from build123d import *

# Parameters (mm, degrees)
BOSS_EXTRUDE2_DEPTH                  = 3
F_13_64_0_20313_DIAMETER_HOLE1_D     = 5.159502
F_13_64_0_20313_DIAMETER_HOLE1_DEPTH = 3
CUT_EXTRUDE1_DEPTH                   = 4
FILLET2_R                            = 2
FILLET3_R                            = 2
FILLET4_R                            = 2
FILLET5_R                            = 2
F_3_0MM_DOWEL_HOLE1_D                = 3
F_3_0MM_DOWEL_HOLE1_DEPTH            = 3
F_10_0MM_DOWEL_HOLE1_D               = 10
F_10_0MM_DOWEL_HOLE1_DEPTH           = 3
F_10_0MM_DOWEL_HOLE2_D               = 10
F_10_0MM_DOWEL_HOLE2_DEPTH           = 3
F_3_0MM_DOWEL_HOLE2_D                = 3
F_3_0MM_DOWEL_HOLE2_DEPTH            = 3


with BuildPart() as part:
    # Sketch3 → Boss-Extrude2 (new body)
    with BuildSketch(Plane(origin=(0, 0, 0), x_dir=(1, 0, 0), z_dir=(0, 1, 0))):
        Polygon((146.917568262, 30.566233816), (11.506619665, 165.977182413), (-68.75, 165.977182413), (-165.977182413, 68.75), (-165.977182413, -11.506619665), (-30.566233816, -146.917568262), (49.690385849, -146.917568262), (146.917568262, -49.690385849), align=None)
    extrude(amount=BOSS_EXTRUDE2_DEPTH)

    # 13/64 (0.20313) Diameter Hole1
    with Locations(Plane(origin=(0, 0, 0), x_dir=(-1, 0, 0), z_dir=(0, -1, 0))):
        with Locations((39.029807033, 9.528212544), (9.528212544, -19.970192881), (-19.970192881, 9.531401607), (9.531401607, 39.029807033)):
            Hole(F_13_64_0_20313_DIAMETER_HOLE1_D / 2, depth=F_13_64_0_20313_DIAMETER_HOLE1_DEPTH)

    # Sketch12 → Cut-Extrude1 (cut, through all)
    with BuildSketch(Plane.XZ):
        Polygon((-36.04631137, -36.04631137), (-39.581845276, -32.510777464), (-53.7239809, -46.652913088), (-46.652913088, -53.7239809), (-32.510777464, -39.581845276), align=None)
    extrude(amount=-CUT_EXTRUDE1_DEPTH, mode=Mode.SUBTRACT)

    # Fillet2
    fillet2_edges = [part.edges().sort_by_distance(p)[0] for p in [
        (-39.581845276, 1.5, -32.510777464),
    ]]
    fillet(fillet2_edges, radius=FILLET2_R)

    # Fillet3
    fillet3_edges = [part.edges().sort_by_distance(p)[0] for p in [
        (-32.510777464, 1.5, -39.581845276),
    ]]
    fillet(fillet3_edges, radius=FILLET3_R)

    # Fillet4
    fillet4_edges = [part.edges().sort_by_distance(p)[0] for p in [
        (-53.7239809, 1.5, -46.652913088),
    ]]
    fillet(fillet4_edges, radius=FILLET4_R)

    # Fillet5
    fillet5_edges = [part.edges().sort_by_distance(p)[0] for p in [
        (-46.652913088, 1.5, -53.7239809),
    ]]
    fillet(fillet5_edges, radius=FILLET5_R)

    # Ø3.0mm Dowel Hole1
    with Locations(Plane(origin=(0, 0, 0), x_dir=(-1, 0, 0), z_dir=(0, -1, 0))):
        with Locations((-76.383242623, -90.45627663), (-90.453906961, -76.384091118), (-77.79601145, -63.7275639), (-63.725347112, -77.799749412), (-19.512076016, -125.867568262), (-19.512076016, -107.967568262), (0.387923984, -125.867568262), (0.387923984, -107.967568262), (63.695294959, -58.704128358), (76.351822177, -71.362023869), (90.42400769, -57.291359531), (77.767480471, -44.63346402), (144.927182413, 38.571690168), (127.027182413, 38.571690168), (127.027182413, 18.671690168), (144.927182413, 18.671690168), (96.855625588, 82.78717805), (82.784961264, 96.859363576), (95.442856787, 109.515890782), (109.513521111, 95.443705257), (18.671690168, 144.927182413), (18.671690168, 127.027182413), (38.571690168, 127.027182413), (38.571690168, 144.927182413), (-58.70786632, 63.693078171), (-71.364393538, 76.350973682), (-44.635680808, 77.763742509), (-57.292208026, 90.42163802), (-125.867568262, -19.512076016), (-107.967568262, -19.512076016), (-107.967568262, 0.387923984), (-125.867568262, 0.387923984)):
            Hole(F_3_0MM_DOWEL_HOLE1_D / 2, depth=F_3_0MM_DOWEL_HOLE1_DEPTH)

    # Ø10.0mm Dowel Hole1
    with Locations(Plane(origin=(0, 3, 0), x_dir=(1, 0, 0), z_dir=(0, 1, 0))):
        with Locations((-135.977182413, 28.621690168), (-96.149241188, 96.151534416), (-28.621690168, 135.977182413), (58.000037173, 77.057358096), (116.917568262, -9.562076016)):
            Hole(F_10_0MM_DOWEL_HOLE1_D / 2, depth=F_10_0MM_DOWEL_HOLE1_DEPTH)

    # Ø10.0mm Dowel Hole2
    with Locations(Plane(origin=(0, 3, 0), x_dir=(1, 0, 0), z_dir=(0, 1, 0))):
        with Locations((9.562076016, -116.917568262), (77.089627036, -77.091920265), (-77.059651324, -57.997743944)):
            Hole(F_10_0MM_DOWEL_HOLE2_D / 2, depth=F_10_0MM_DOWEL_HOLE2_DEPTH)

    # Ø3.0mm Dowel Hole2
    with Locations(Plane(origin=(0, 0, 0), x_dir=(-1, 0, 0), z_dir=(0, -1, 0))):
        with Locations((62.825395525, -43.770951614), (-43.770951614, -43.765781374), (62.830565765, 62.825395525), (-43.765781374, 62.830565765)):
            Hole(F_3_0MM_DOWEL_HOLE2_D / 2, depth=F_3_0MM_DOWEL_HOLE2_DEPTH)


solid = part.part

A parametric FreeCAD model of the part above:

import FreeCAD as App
import Part
import Sketcher
from FreeCAD import Vector
Q = App.Units.Quantity


def edges_at(feature, points):
    """Names of the edges that pass closest to the given points."""
    edges = feature.Shape.Edges
    near = lambda p: min(range(len(edges)), key=lambda i: edges[i].distToShape(Part.Vertex(*p))[0])
    return sorted({f"Edge{near(p) + 1}" for p in points})

doc = App.newDocument("Part")
body = doc.addObject("PartDesign::Body", "Body")

sketch1 = body.newObject("Sketcher::SketchObject", "Sketch")
sketch1.AttachmentSupport = (doc.getObject("XZ_Plane"), [""])
sketch1.MapMode = "FlatFace"
sketch1.addGeometry([
    Part.LineSegment(Vector(147, -31, 0), Vector(12, -166, 0)),
    Part.LineSegment(Vector(12, -166, 0), Vector(-69, -166, 0)),
    Part.LineSegment(Vector(-69, -166, 0), Vector(-166, -69, 0)),
    Part.LineSegment(Vector(-166, -69, 0), Vector(-166, 12, 0)),
    Part.LineSegment(Vector(-166, 12, 0), Vector(-31, 147, 0)),
    Part.LineSegment(Vector(-31, 147, 0), Vector(50, 147, 0)),
    Part.LineSegment(Vector(50, 147, 0), Vector(147, 50, 0)),
    Part.LineSegment(Vector(147, 50, 0), Vector(147, -31, 0)),
], False)
sketch1.addConstraint([
    Sketcher.Constraint("Coincident", 0, 2, 1, 1),
    Sketcher.Constraint("Coincident", 1, 2, 2, 1),
    Sketcher.Constraint("Coincident", 2, 2, 3, 1),
    Sketcher.Constraint("Coincident", 3, 2, 4, 1),
    Sketcher.Constraint("Coincident", 4, 2, 5, 1),
    Sketcher.Constraint("Coincident", 5, 2, 6, 1),
    Sketcher.Constraint("Coincident", 6, 2, 7, 1),
    Sketcher.Constraint("Coincident", 7, 2, 0, 1),
    Sketcher.Constraint("Horizontal", 1),
    Sketcher.Constraint("Vertical", 3),
    Sketcher.Constraint("Horizontal", 5),
    Sketcher.Constraint("Vertical", 7),
    Sketcher.Constraint("Perpendicular", 0, 2),
    Sketcher.Constraint("Perpendicular", 2, 4),
    Sketcher.Constraint("Perpendicular", 4, 6),
    Sketcher.Constraint("Equal", 1, 5),
    Sketcher.Constraint("Equal", 5, 3),
    Sketcher.Constraint("Equal", 3, 7),
    Sketcher.Constraint("Angle", 0, Q("-135 deg")),
    Sketcher.Constraint("Distance", 0, 191.5),
    Sketcher.Constraint("Distance", 2, 137.5),
    Sketcher.Constraint("DistanceX", 1, 2, -1, 1, 68.75),
    Sketcher.Constraint("DistanceY", 2, 2, -1, 1, 68.75),
    Sketcher.Constraint("DistanceX", 1, 2, 1, 1, 80.25662),
])
pad1 = body.newObject("PartDesign::Pad", "Pad")
pad1.Profile = sketch1
pad1.Length = 3
pad1.Reversed = True

sketch2 = body.newObject("Sketcher::SketchObject", "Sketch001")
sketch2.AttachmentSupport = (doc.getObject("XZ_Plane"), [""])
sketch2.MapMode = "FlatFace"
sketch2.addGeometry([
    Part.Circle(Vector(-39, -9.5, 0), Vector(0, 0, 1), 2.6),
    Part.Circle(Vector(-9.5, 20, 0), Vector(0, 0, 1), 2.6),
    Part.Circle(Vector(20, -9.5, 0), Vector(0, 0, 1), 2.6),
    Part.Circle(Vector(-9.5, -39, 0), Vector(0, 0, 1), 2.6),
], False)
sketch2.addConstraint([
    Sketcher.Constraint("Equal", 0, 1),
    Sketcher.Constraint("Equal", 1, 2),
    Sketcher.Constraint("Equal", 2, 3),
    Sketcher.Constraint("DistanceX", 0, 3, 2, 3, 59.0),
    Sketcher.Constraint("DistanceY", 3, 3, 1, 3, 59.0),
    Sketcher.Constraint("Diameter", 0, 5.159502),
    Sketcher.Constraint("DistanceY", 2, 3, -1, 1, 9.531402),
    Sketcher.Constraint("DistanceX", 3, 3, -1, 1, 9.531402),
    Sketcher.Constraint("DistanceY", 2, 3, 0, 3, 0.003189),
    Sketcher.Constraint("DistanceX", 3, 3, 1, 3, 0.003189),
    Sketcher.Constraint("DistanceX", 0, 3, -1, 1, 39.029807),
    Sketcher.Constraint("DistanceY", -1, 1, 1, 3, 19.970193),
])
doc.recompute()
hole = body.newObject("PartDesign::Hole", "Hole")
hole.Profile = sketch2
hole.ThreadType = "None"
hole.Diameter = 5.159502
hole.DepthType = "Dimension"
hole.Depth = 3
hole.DrillPoint = "Flat"

sketch3 = body.newObject("Sketcher::SketchObject", "Sketch002")
sketch3.AttachmentSupport = (doc.getObject("XZ_Plane"), [""])
sketch3.MapMode = "FlatFace"
sketch3.addGeometry([
    Part.LineSegment(Vector(-40, -33, 0), Vector(-54, -47, 0)),
    Part.LineSegment(Vector(-54, -47, 0), Vector(-47, -54, 0)),
    Part.LineSegment(Vector(-47, -54, 0), Vector(-33, -40, 0)),
    Part.LineSegment(Vector(-33, -40, 0), Vector(-40, -33, 0)),
], False)
sketch3.addConstraint([
    Sketcher.Constraint("Coincident", 0, 2, 1, 1),
    Sketcher.Constraint("Coincident", 1, 2, 2, 1),
    Sketcher.Constraint("Coincident", 2, 2, 3, 1),
    Sketcher.Constraint("Coincident", 3, 2, 0, 1),
    Sketcher.Constraint("Perpendicular", 0, 1),
    Sketcher.Constraint("Perpendicular", 1, 2),
    Sketcher.Constraint("Perpendicular", 2, 3),
    Sketcher.Constraint("Angle", 0, Q("-135 deg")),
    Sketcher.Constraint("Distance", 0, 20.0),
    Sketcher.Constraint("Distance", 1, 10.0),
    Sketcher.Constraint("DistanceX", 0, 2, -1, 1, 53.723981),
    Sketcher.Constraint("DistanceY", 1, 2, -1, 1, 53.723981),
])
pocket1 = body.newObject("PartDesign::Pocket", "Pocket")
pocket1.Profile = sketch3
pocket1.Type = "ThroughAll"
doc.recompute()

fillet = body.newObject("PartDesign::Fillet", "Fillet")
fillet.Base = (pocket1, edges_at(pocket1, [(-39.582, 1.5, -32.511)]))
fillet.Radius = 2
doc.recompute()

fillet2 = body.newObject("PartDesign::Fillet", "Fillet001")
fillet2.Base = (fillet, edges_at(fillet, [(-32.511, 1.5, -39.582)]))
fillet2.Radius = 2
doc.recompute()

fillet3 = body.newObject("PartDesign::Fillet", "Fillet002")
fillet3.Base = (fillet2, edges_at(fillet2, [(-53.724, 1.5, -46.653)]))
fillet3.Radius = 2
doc.recompute()

fillet4 = body.newObject("PartDesign::Fillet", "Fillet003")
fillet4.Base = (fillet3, edges_at(fillet3, [(-46.653, 1.5, -53.724)]))
fillet4.Radius = 2

sketch4 = body.newObject("Sketcher::SketchObject", "Sketch003")
sketch4.AttachmentSupport = (doc.getObject("XZ_Plane"), [""])
sketch4.MapMode = "FlatFace"
sketch4.addGeometry([
    Part.Circle(Vector(76.4, 90.5, 0), Vector(0, 0, 1), 1.5),
    Part.Circle(Vector(90.5, 76.4, 0), Vector(0, 0, 1), 1.5),
    Part.Circle(Vector(77.8, 63.7, 0), Vector(0, 0, 1), 1.5),
    Part.Circle(Vector(63.7, 77.8, 0), Vector(0, 0, 1), 1.5),
    Part.Circle(Vector(19.5, 125.9, 0), Vector(0, 0, 1), 1.5),
    Part.Circle(Vector(19.5, 108, 0), Vector(0, 0, 1), 1.5),
    Part.Circle(Vector(-0.4, 125.9, 0), Vector(0, 0, 1), 1.5),
    Part.Circle(Vector(-0.4, 108, 0), Vector(0, 0, 1), 1.5),
    Part.Circle(Vector(-63.7, 58.7, 0), Vector(0, 0, 1), 1.5),
    Part.Circle(Vector(-76.4, 71.4, 0), Vector(0, 0, 1), 1.5),
    Part.Circle(Vector(-90.4, 57.3, 0), Vector(0, 0, 1), 1.5),
    Part.Circle(Vector(-77.8, 44.6, 0), Vector(0, 0, 1), 1.5),
    Part.Circle(Vector(-144.9, -38.6, 0), Vector(0, 0, 1), 1.5),
    Part.Circle(Vector(-127, -38.6, 0), Vector(0, 0, 1), 1.5),
    Part.Circle(Vector(-127, -18.7, 0), Vector(0, 0, 1), 1.5),
    Part.Circle(Vector(-144.9, -18.7, 0), Vector(0, 0, 1), 1.5),
    Part.Circle(Vector(-96.9, -82.8, 0), Vector(0, 0, 1), 1.5),
    Part.Circle(Vector(-82.8, -96.9, 0), Vector(0, 0, 1), 1.5),
    Part.Circle(Vector(-95.4, -109.5, 0), Vector(0, 0, 1), 1.5),
    Part.Circle(Vector(-109.5, -95.4, 0), Vector(0, 0, 1), 1.5),
    Part.Circle(Vector(-18.7, -144.9, 0), Vector(0, 0, 1), 1.5),
    Part.Circle(Vector(-18.7, -127, 0), Vector(0, 0, 1), 1.5),
    Part.Circle(Vector(-38.6, -127, 0), Vector(0, 0, 1), 1.5),
    Part.Circle(Vector(-38.6, -144.9, 0), Vector(0, 0, 1), 1.5),
    Part.Circle(Vector(58.7, -63.7, 0), Vector(0, 0, 1), 1.5),
    Part.Circle(Vector(71.4, -76.4, 0), Vector(0, 0, 1), 1.5),
    Part.Circle(Vector(44.6, -77.8, 0), Vector(0, 0, 1), 1.5),
    Part.Circle(Vector(57.3, -90.4, 0), Vector(0, 0, 1), 1.5),
    Part.Circle(Vector(125.9, 19.5, 0), Vector(0, 0, 1), 1.5),
    Part.Circle(Vector(108, 19.5, 0), Vector(0, 0, 1), 1.5),
    Part.Circle(Vector(108, -0.4, 0), Vector(0, 0, 1), 1.5),
    Part.Circle(Vector(125.9, -0.4, 0), Vector(0, 0, 1), 1.5),
], False)
sketch4.addConstraint([
    Sketcher.Constraint("Equal", 0, 1),
    Sketcher.Constraint("Equal", 1, 2),
    Sketcher.Constraint("Equal", 2, 3),
    Sketcher.Constraint("Equal", 3, 4),
    Sketcher.Constraint("Equal", 4, 5),
    Sketcher.Constraint("Equal", 5, 6),
    Sketcher.Constraint("Equal", 6, 7),
    Sketcher.Constraint("Equal", 7, 8),
    Sketcher.Constraint("Equal", 8, 9),
    Sketcher.Constraint("Equal", 9, 10),
    Sketcher.Constraint("Equal", 10, 11),
    Sketcher.Constraint("Equal", 11, 12),
    Sketcher.Constraint("Equal", 12, 13),
    Sketcher.Constraint("Equal", 13, 14),
    Sketcher.Constraint("Equal", 14, 15),
    Sketcher.Constraint("Equal", 15, 16),
    Sketcher.Constraint("Equal", 16, 17),
    Sketcher.Constraint("Equal", 17, 18),
    Sketcher.Constraint("Equal", 18, 19),
    Sketcher.Constraint("Equal", 19, 20),
    Sketcher.Constraint("Equal", 20, 21),
    Sketcher.Constraint("Equal", 21, 22),
    Sketcher.Constraint("Equal", 22, 23),
    Sketcher.Constraint("Equal", 23, 24),
    Sketcher.Constraint("Equal", 24, 25),
    Sketcher.Constraint("Equal", 25, 26),
    Sketcher.Constraint("Equal", 26, 27),
    Sketcher.Constraint("Equal", 27, 28),
    Sketcher.Constraint("Equal", 28, 29),
    Sketcher.Constraint("Equal", 29, 30),
    Sketcher.Constraint("Equal", 30, 31),
    Sketcher.Constraint("Horizontal", 4, 3, 6, 3),
    Sketcher.Constraint("Horizontal", 5, 3, 7, 3),
    Sketcher.Constraint("Horizontal", 12, 3, 13, 3),
    Sketcher.Constraint("Horizontal", 14, 3, 15, 3),
    Sketcher.Constraint("Horizontal", 21, 3, 22, 3),
    Sketcher.Constraint("Horizontal", 20, 3, 23, 3),
    Sketcher.Constraint("Horizontal", 28, 3, 29, 3),
    Sketcher.Constraint("Horizontal", 30, 3, 31, 3),
    Sketcher.Constraint("Vertical", 4, 3, 5, 3),
    Sketcher.Constraint("Vertical", 6, 3, 7, 3),
    Sketcher.Constraint("Vertical", 13, 3, 14, 3),
    Sketcher.Constraint("Vertical", 12, 3, 15, 3),
    Sketcher.Constraint("Vertical", 20, 3, 21, 3),
    Sketcher.Constraint("Vertical", 22, 3, 23, 3),
    Sketcher.Constraint("Vertical", 29, 3, 30, 3),
    Sketcher.Constraint("Vertical", 28, 3, 31, 3),
    Sketcher.Constraint("Diameter", 0, 3.0),
    Sketcher.Constraint("DistanceY", 5, 3, 4, 3, 17.9),
    Sketcher.Constraint("DistanceX", 6, 3, 4, 3, 19.9),
    Sketcher.Constraint("DistanceX", 12, 3, 13, 3, 17.9),
    Sketcher.Constraint("DistanceY", 13, 3, 14, 3, 19.9),
    Sketcher.Constraint("DistanceY", 20, 3, 21, 3, 17.9),
    Sketcher.Constraint("DistanceX", 22, 3, 21, 3, 19.9),
    Sketcher.Constraint("DistanceX", 29, 3, 28, 3, 17.9),
    Sketcher.Constraint("DistanceY", 30, 3, 29, 3, 19.9),
    Sketcher.Constraint("DistanceX", 9, 3, 7, 3, 75.963898),
    Sketcher.Constraint("DistanceX", 12, 3, 11, 3, 67.159702),
    Sketcher.Constraint("DistanceY", 18, 3, 13, 3, 70.944201),
    Sketcher.Constraint("DistanceX", 21, 3, 27, 3, 75.963898),
    Sketcher.Constraint("DistanceY", 28, 3, 0, 3, 70.944201),
    Sketcher.Constraint("DistanceX", 24, 3, 28, 3, 67.159702),
    Sketcher.Constraint("DistanceY", -1, 1, 1, 3, 76.384091),
    Sketcher.Constraint("DistanceX", -1, 1, 2, 3, 77.796011),
    Sketcher.Constraint("DistanceY", -1, 1, 3, 3, 77.799749),
    Sketcher.Constraint("DistanceY", -1, 1, 4, 3, 125.867568),
    Sketcher.Constraint("DistanceY", -1, 1, 8, 3, 58.704128),
    Sketcher.Constraint("DistanceY", -1, 1, 10, 3, 57.29136),
    Sketcher.Constraint("DistanceX", 11, 3, -1, 1, 77.76748),
    Sketcher.Constraint("DistanceY", 12, 3, -1, 1, 38.57169),
    Sketcher.Constraint("DistanceY", 16, 3, -1, 1, 82.787178),
    Sketcher.Constraint("DistanceX", 17, 3, -1, 1, 82.784961),
    Sketcher.Constraint("DistanceX", 19, 3, -1, 1, 109.513521),
    Sketcher.Constraint("DistanceX", 20, 3, -1, 1, 18.67169),
    Sketcher.Constraint("DistanceY", 24, 3, -1, 1, 63.693078),
    Sketcher.Constraint("DistanceX", -1, 1, 26, 3, 44.635681),
    Sketcher.Constraint("DistanceY", 27, 3, -1, 1, 90.421638),
    Sketcher.Constraint("DistanceX", -1, 1, 28, 3, 125.867568),
    Sketcher.Constraint("DistanceX", 0, 3, 2, 3, 1.412769),
    Sketcher.Constraint("DistanceX", 3, 3, 1, 3, 26.72856),
    Sketcher.Constraint("DistanceX", 4, 3, 3, 3, 44.213271),
    Sketcher.Constraint("DistanceY", 0, 3, 4, 3, 35.411292),
    Sketcher.Constraint("DistanceX", 8, 3, 7, 3, 63.307371),
    Sketcher.Constraint("DistanceX", 11, 3, 9, 3, 1.415658),
    Sketcher.Constraint("DistanceY", 11, 3, 9, 3, 26.72856),
    Sketcher.Constraint("DistanceX", 16, 3, 18, 3, 1.412769),
    Sketcher.Constraint("DistanceY", 17, 3, 19, 3, 1.415658),
    Sketcher.Constraint("DistanceY", 20, 3, 17, 3, 48.067819),
    Sketcher.Constraint("DistanceY", 20, 3, 18, 3, 35.411292),
    Sketcher.Constraint("DistanceY", 21, 3, 25, 3, 50.676209),
    Sketcher.Constraint("DistanceY", 26, 3, 25, 3, 1.412769),
    Sketcher.Constraint("DistanceY", -1, 1, 2, 3, 63.727564),
    Sketcher.Constraint("DistanceY", -1, 1, 9, 3, 71.362024),
    Sketcher.Constraint("DistanceX", 10, 3, -1, 1, 90.424008),
    Sketcher.Constraint("DistanceX", 16, 3, -1, 1, 96.855626),
    Sketcher.Constraint("DistanceX", -1, 1, 25, 3, 71.364394),
])
doc.recompute()
hole2 = body.newObject("PartDesign::Hole", "Hole001")
hole2.Profile = sketch4
hole2.ThreadType = "None"
hole2.Diameter = 3
hole2.DepthType = "Dimension"
hole2.Depth = 3
hole2.DrillPoint = "Flat"

sketch5 = body.newObject("Sketcher::SketchObject", "Sketch004")
sketch5.AttachmentSupport = (doc.getObject("XZ_Plane"), [""])
sketch5.MapMode = "FlatFace"
sketch5.AttachmentOffset = App.Placement(Vector(0, 0, -3), App.Rotation())
sketch5.addGeometry([
    Part.Circle(Vector(-136, -29, 0), Vector(0, 0, 1), 5),
    Part.Circle(Vector(-96, -96, 0), Vector(0, 0, 1), 5),
    Part.Circle(Vector(-29, -136, 0), Vector(0, 0, 1), 5),
    Part.Circle(Vector(58, -77, 0), Vector(0, 0, 1), 5),
    Part.Circle(Vector(117, 10, 0), Vector(0, 0, 1), 5),
], False)
sketch5.addConstraint([
    Sketcher.Constraint("Equal", 0, 1),
    Sketcher.Constraint("Equal", 1, 2),
    Sketcher.Constraint("Equal", 2, 3),
    Sketcher.Constraint("Equal", 3, 4),
    Sketcher.Constraint("Diameter", 0, 10.0),
    Sketcher.Constraint("DistanceY", 0, 3, -1, 1, 28.62169),
    Sketcher.Constraint("DistanceX", 1, 3, -1, 1, 96.149241),
    Sketcher.Constraint("DistanceX", 2, 3, -1, 1, 28.62169),
    Sketcher.Constraint("DistanceY", 3, 3, -1, 1, 77.057358),
    Sketcher.Constraint("DistanceX", -1, 1, 4, 3, 116.917568),
    Sketcher.Constraint("DistanceX", 0, 3, 1, 3, 39.827941),
    Sketcher.Constraint("DistanceX", 1, 3, 3, 3, 154.149278),
    Sketcher.Constraint("DistanceY", 2, 3, 4, 3, 145.539258),
    Sketcher.Constraint("DistanceY", 1, 3, 4, 3, 105.71361),
    Sketcher.Constraint("DistanceY", 1, 3, -1, 1, 96.151534),
])
doc.recompute()
hole3 = body.newObject("PartDesign::Hole", "Hole002")
hole3.Profile = sketch5
hole3.ThreadType = "None"
hole3.Diameter = 10
hole3.DepthType = "Dimension"
hole3.Depth = 3
hole3.DrillPoint = "Flat"
hole3.Reversed = True

sketch6 = body.newObject("Sketcher::SketchObject", "Sketch005")
sketch6.AttachmentSupport = (doc.getObject("XZ_Plane"), [""])
sketch6.MapMode = "FlatFace"
sketch6.AttachmentOffset = App.Placement(Vector(0, 0, -3), App.Rotation())
sketch6.addGeometry([
    Part.Circle(Vector(10, 117, 0), Vector(0, 0, 1), 5),
    Part.Circle(Vector(77, 77, 0), Vector(0, 0, 1), 5),
    Part.Circle(Vector(-77, 58, 0), Vector(0, 0, 1), 5),
], False)
sketch6.addConstraint([
    Sketcher.Constraint("Equal", 0, 1),
    Sketcher.Constraint("Equal", 1, 2),
    Sketcher.Constraint("Diameter", 0, 10.0),
    Sketcher.Constraint("DistanceY", -1, 1, 0, 3, 116.917568),
    Sketcher.Constraint("DistanceY", -1, 1, 1, 3, 77.09192),
    Sketcher.Constraint("DistanceX", 2, 3, -1, 1, 77.059651),
    Sketcher.Constraint("DistanceX", 0, 3, 1, 3, 67.527551),
    Sketcher.Constraint("DistanceX", 2, 3, 1, 3, 154.149278),
    Sketcher.Constraint("DistanceY", -1, 1, 2, 3, 57.997744),
])
doc.recompute()
hole4 = body.newObject("PartDesign::Hole", "Hole003")
hole4.Profile = sketch6
hole4.ThreadType = "None"
hole4.Diameter = 10
hole4.DepthType = "Dimension"
hole4.Depth = 3
hole4.DrillPoint = "Flat"
hole4.Reversed = True

sketch7 = body.newObject("Sketcher::SketchObject", "Sketch006")
sketch7.AttachmentSupport = (doc.getObject("XZ_Plane"), [""])
sketch7.MapMode = "FlatFace"
sketch7.addGeometry([
    Part.Circle(Vector(-62.8, 43.8, 0), Vector(0, 0, 1), 1.5),
    Part.Circle(Vector(43.8, 43.8, 0), Vector(0, 0, 1), 1.5),
    Part.Circle(Vector(-62.8, -62.8, 0), Vector(0, 0, 1), 1.5),
    Part.Circle(Vector(43.8, -62.8, 0), Vector(0, 0, 1), 1.5),
], False)
sketch7.addConstraint([
    Sketcher.Constraint("Equal", 0, 1),
    Sketcher.Constraint("Equal", 1, 2),
    Sketcher.Constraint("Equal", 2, 3),
    Sketcher.Constraint("Diameter", 0, 3.0),
    Sketcher.Constraint("DistanceY", -1, 1, 0, 3, 43.770952),
    Sketcher.Constraint("DistanceX", -1, 1, 1, 3, 43.770952),
    Sketcher.Constraint("DistanceY", -1, 1, 1, 3, 43.765781),
    Sketcher.Constraint("DistanceX", -1, 1, 3, 3, 43.765781),
    Sketcher.Constraint("DistanceX", 2, 3, 0, 3, 0.00517),
    Sketcher.Constraint("DistanceY", 3, 3, 2, 3, 0.00517),
    Sketcher.Constraint("DistanceX", 0, 3, -1, 1, 62.825396),
    Sketcher.Constraint("DistanceY", 2, 3, -1, 1, 62.825396),
])
doc.recompute()
hole5 = body.newObject("PartDesign::Hole", "Hole004")
hole5.Profile = sketch7
hole5.ThreadType = "None"
hole5.Diameter = 3
hole5.DepthType = "Dimension"
hole5.Depth = 3
hole5.DrillPoint = "Flat"

doc.recompute()
